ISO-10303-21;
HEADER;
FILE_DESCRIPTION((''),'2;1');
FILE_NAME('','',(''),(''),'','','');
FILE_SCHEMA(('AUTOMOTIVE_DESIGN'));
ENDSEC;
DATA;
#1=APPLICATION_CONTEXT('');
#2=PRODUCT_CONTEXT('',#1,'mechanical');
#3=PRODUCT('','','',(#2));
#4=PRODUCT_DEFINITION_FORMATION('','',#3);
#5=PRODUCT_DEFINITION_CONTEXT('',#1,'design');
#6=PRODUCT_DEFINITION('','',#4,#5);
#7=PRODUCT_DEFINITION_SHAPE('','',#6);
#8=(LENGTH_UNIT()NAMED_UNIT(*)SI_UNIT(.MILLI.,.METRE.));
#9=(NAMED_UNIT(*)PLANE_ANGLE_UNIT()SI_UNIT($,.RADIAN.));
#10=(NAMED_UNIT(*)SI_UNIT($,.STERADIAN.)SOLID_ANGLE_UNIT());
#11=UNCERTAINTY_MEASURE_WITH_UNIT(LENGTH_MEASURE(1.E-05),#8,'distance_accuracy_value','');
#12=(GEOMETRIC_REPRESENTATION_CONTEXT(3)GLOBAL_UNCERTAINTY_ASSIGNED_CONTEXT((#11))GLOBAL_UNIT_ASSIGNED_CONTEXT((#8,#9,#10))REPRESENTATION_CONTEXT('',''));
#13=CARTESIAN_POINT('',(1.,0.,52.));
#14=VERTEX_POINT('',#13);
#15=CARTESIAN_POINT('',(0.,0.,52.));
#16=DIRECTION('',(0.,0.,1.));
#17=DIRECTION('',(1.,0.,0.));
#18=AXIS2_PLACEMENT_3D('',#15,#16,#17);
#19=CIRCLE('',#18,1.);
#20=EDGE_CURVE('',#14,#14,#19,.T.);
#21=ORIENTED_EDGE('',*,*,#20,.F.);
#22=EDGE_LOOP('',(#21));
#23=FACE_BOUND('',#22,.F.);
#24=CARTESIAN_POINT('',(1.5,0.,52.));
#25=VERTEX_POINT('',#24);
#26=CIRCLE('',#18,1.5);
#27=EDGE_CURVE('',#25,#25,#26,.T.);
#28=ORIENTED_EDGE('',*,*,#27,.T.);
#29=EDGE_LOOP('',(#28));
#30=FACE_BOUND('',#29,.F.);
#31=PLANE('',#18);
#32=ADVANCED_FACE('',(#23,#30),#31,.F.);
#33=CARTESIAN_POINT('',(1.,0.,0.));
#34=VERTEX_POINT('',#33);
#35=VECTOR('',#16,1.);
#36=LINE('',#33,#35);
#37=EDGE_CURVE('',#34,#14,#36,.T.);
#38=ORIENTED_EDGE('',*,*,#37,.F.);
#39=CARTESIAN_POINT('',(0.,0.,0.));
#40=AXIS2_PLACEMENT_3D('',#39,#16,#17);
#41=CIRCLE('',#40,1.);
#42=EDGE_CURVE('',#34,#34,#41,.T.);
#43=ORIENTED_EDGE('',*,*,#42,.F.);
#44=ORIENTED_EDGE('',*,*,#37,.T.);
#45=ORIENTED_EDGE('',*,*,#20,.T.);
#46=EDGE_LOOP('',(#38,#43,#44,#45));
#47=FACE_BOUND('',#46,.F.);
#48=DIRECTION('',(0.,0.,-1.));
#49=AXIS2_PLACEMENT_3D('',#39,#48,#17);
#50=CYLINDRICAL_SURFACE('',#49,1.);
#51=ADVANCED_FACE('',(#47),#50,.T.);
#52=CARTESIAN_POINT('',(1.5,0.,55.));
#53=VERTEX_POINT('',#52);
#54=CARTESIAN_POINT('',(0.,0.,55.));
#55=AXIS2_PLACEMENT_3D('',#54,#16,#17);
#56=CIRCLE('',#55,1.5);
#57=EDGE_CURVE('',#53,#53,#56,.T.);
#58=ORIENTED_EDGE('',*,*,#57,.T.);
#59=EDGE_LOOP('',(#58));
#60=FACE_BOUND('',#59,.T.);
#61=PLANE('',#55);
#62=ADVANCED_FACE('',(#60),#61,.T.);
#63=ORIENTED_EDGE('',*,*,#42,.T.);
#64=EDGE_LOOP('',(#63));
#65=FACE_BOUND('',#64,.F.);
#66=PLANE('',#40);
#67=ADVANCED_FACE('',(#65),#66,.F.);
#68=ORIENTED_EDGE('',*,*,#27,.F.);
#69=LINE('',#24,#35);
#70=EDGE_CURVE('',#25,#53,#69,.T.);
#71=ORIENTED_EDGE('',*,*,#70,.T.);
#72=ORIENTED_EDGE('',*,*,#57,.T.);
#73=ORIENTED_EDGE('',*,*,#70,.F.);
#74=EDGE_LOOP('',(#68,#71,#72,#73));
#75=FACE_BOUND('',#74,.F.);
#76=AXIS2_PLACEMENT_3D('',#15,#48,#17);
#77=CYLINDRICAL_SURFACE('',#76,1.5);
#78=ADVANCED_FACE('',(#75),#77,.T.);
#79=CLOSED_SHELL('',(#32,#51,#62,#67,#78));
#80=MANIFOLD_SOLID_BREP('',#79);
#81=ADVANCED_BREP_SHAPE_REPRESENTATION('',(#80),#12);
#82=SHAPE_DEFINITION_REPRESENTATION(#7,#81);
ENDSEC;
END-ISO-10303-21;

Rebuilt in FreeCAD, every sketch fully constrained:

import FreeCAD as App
import Part
import Sketcher
Q = App.Units.Quantity

doc = App.newDocument("Part")
body = doc.addObject("PartDesign::Body", "Body")

# Sketch on XY plane
sketch1 = body.newObject("Sketcher::SketchObject", "Sketch")
sketch1.AttachmentSupport = (doc.getObject("XY_Plane"), [""])
sketch1.MapMode = "FlatFace"
sketch1.addGeometry(Part.Circle(App.Vector(0, 0, 0), App.Vector(0, 0, 1), 1), False)
sketch1.addConstraint([
    Sketcher.Constraint("Coincident", 0, 3, -1, 1),
    Sketcher.Constraint("Diameter", 0, Q("2 mm")),
])
pad1 = body.newObject("PartDesign::Pad", "Pad")
pad1.Profile = sketch1
pad1.Length = 52

# Sketch on XY plane
sketch2 = body.newObject("Sketcher::SketchObject", "Sketch001")
sketch2.AttachmentSupport = (doc.getObject("XY_Plane"), [""])
sketch2.MapMode = "FlatFace"
sketch2.AttachmentOffset = App.Placement(App.Vector(0, 0, 52), App.Rotation())
sketch2.addGeometry(Part.Circle(App.Vector(0, 0, 0), App.Vector(0, 0, 1), 1.5), False)
sketch2.addConstraint([
    Sketcher.Constraint("Coincident", 0, 3, -1, 1),
    Sketcher.Constraint("Diameter", 0, Q("3 mm")),
])
pad2 = body.newObject("PartDesign::Pad", "Pad001")
pad2.Profile = sketch2
pad2.Length = 3

doc.recompute()
